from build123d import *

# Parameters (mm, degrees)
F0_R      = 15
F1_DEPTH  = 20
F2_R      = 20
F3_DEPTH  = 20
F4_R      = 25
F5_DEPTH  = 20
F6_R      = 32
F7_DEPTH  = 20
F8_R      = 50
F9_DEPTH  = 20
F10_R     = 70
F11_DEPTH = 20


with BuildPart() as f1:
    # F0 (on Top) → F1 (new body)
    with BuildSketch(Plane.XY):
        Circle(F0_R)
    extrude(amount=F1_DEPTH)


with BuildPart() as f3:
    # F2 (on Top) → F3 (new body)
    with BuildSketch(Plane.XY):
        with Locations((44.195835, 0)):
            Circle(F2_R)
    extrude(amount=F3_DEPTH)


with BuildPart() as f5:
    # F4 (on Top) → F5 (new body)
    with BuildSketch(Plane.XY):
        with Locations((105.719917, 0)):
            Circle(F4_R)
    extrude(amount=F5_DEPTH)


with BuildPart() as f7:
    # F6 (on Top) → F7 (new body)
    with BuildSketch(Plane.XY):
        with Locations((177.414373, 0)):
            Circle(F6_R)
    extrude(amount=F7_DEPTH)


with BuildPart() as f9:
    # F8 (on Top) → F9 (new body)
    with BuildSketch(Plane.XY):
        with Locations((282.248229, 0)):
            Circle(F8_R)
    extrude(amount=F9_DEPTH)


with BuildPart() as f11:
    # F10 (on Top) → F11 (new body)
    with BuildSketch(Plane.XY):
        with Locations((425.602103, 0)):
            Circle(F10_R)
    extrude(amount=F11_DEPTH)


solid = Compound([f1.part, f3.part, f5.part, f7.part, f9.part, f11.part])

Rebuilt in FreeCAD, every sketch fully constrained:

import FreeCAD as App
import Part
import Sketcher

V = App.Vector

doc = App.newDocument("Part")
body = doc.addObject("PartDesign::Body", "Body")

sketch1 = body.newObject("Sketcher::SketchObject", "Sketch")
sketch1.AttachmentSupport = (doc.getObject("XY_Plane"), [""])
sketch1.MapMode = "FlatFace"
sketch1.addGeometry(Part.Circle(V(0, 0, 0), V(0, 0, 1), 15), False)
sketch1.addConstraint([
    Sketcher.Constraint("Coincident", 0, 3, -1, 1),
    Sketcher.Constraint("Diameter", 0, 30.0),
])
pad1 = body.newObject("PartDesign::Pad", "Pad")
pad1.Profile = sketch1
pad1.Length = 20
body2 = doc.addObject("PartDesign::Body", "Body001")

sketch2 = body2.newObject("Sketcher::SketchObject", "Sketch001")
sketch2.AttachmentSupport = (doc.getObject("XY_Plane001"), [""])
sketch2.MapMode = "FlatFace"
sketch2.addGeometry(Part.Circle(V(44.195835, 0, 0), V(0, 0, 1), 20), False)
sketch2.addConstraint([
    Sketcher.Constraint("PointOnObject", 0, 3, -1),
    Sketcher.Constraint("Diameter", 0, 40.0),
    Sketcher.Constraint("DistanceX", -1, 1, 0, 3, 44.195835),
])
pad2 = body2.newObject("PartDesign::Pad", "Pad001")
pad2.Profile = sketch2
pad2.Length = 20
body3 = doc.addObject("PartDesign::Body", "Body002")

sketch3 = body3.newObject("Sketcher::SketchObject", "Sketch002")
sketch3.AttachmentSupport = (doc.getObject("XY_Plane002"), [""])
sketch3.MapMode = "FlatFace"
sketch3.addGeometry(Part.Circle(V(105.719917, 0, 0), V(0, 0, 1), 25), False)
sketch3.addConstraint([
    Sketcher.Constraint("PointOnObject", 0, 3, -1),
    Sketcher.Constraint("Diameter", 0, 50.0),
    Sketcher.Constraint("DistanceX", -1, 1, 0, 3, 105.719917),
])
pad3 = body3.newObject("PartDesign::Pad", "Pad002")
pad3.Profile = sketch3
pad3.Length = 20
body4 = doc.addObject("PartDesign::Body", "Body003")

sketch4 = body4.newObject("Sketcher::SketchObject", "Sketch003")
sketch4.AttachmentSupport = (doc.getObject("XY_Plane003"), [""])
sketch4.MapMode = "FlatFace"
sketch4.addGeometry(Part.Circle(V(177.414373, 0, 0), V(0, 0, 1), 32), False)
sketch4.addConstraint([
    Sketcher.Constraint("PointOnObject", 0, 3, -1),
    Sketcher.Constraint("Diameter", 0, 64.0),
    Sketcher.Constraint("DistanceX", -1, 1, 0, 3, 177.414373),
])
pad4 = body4.newObject("PartDesign::Pad", "Pad003")
pad4.Profile = sketch4
pad4.Length = 20
body5 = doc.addObject("PartDesign::Body", "Body004")

sketch5 = body5.newObject("Sketcher::SketchObject", "Sketch004")
sketch5.AttachmentSupport = (doc.getObject("XY_Plane004"), [""])
sketch5.MapMode = "FlatFace"
sketch5.addGeometry(Part.Circle(V(282.248229, 0, 0), V(0, 0, 1), 50), False)
sketch5.addConstraint([
    Sketcher.Constraint("PointOnObject", 0, 3, -1),
    Sketcher.Constraint("Diameter", 0, 100.0),
    Sketcher.Constraint("DistanceX", -1, 1, 0, 3, 282.248229),
])
pad5 = body5.newObject("PartDesign::Pad", "Pad004")
pad5.Profile = sketch5
pad5.Length = 20
body6 = doc.addObject("PartDesign::Body", "Body005")

sketch6 = body6.newObject("Sketcher::SketchObject", "Sketch005")
sketch6.AttachmentSupport = (doc.getObject("XY_Plane005"), [""])
sketch6.MapMode = "FlatFace"
sketch6.addGeometry(Part.Circle(V(425.602103, 0, 0), V(0, 0, 1), 70), False)
sketch6.addConstraint([
    Sketcher.Constraint("PointOnObject", 0, 3, -1),
    Sketcher.Constraint("Diameter", 0, 140.0),
    Sketcher.Constraint("DistanceX", -1, 1, 0, 3, 425.602103),
])
pad6 = body6.newObject("PartDesign::Pad", "Pad005")
pad6.Profile = sketch6
pad6.Length = 20

doc.recompute()
